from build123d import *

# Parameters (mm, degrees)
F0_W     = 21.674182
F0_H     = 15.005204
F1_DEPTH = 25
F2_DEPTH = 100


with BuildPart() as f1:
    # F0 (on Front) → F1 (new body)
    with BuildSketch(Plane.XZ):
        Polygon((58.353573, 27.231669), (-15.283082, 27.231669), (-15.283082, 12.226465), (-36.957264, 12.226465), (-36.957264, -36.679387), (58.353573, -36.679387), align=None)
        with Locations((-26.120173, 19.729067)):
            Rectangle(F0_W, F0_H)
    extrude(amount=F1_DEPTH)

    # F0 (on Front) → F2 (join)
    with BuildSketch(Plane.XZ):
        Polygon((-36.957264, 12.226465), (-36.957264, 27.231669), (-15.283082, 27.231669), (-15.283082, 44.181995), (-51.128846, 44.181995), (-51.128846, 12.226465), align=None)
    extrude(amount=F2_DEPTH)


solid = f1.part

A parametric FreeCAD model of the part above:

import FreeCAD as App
import Part
import Sketcher

V = App.Vector


def add_polygon(sketch, points):
    """Adds a closed chain of lines whose ends are joined by coincident constraints."""
    first, n = sketch.GeometryCount, len(points)
    for a, b in zip(points, points[1:] + points[:1]):
        sketch.addGeometry(Part.LineSegment(App.Vector(*a, 0), App.Vector(*b, 0)), False)
    for i in range(n):
        sketch.addConstraint(Sketcher.Constraint("Coincident", first + i, 2, first + (i + 1) % n, 1))

doc = App.newDocument("Part")
body = doc.addObject("PartDesign::Body", "Body")

sketch1 = body.newObject("Sketcher::SketchObject", "Sketch")
sketch1.AttachmentSupport = (doc.getObject("XZ_Plane"), [""])
sketch1.MapMode = "FlatFace"
add_polygon(sketch1, [(58, 27), (-37, 27), (-37, -37), (58, -37)])
sketch1.addConstraint([
    Sketcher.Constraint("Horizontal", 0),
    Sketcher.Constraint("Vertical", 1),
    Sketcher.Constraint("Horizontal", 2),
    Sketcher.Constraint("Vertical", 3),
    Sketcher.Constraint("DistanceX", 0, 2, 0, 1, 95.310837),
    Sketcher.Constraint("DistanceY", 1, 2, 1, 1, 63.911056),
    Sketcher.Constraint("DistanceY", -1, 1, 0, 2, 27.231669),
    Sketcher.Constraint("DistanceX", 0, 2, -1, 1, 36.957264),
])
pad1 = body.newObject("PartDesign::Pad", "Pad")
pad1.Profile = sketch1
pad1.Length = 25

sketch2 = body.newObject("Sketcher::SketchObject", "Sketch001")
sketch2.AttachmentSupport = (doc.getObject("XZ_Plane"), [""])
sketch2.MapMode = "FlatFace"
add_polygon(sketch2, [(-37, 12), (-37, 27), (-15, 27), (-15, 44), (-51, 44), (-51, 12)])
sketch2.addConstraint([
    Sketcher.Constraint("Vertical", 0),
    Sketcher.Constraint("Horizontal", 1),
    Sketcher.Constraint("Vertical", 2),
    Sketcher.Constraint("Horizontal", 3),
    Sketcher.Constraint("Vertical", 4),
    Sketcher.Constraint("Horizontal", 5),
    Sketcher.Constraint("DistanceY", 4, 2, 4, 1, 31.95553),
    Sketcher.Constraint("DistanceX", 1, 1, 1, 2, 21.674182),
    Sketcher.Constraint("DistanceX", 3, 2, 3, 1, 35.845764),
    Sketcher.Constraint("DistanceY", 0, 1, 0, 2, 15.005204),
    Sketcher.Constraint("DistanceY", -1, 1, 0, 2, 27.231669),
    Sketcher.Constraint("DistanceX", 0, 2, -1, 1, 36.957264),
])
pad2 = body.newObject("PartDesign::Pad", "Pad001")
pad2.Profile = sketch2
pad2.Length = 100

doc.recompute()
